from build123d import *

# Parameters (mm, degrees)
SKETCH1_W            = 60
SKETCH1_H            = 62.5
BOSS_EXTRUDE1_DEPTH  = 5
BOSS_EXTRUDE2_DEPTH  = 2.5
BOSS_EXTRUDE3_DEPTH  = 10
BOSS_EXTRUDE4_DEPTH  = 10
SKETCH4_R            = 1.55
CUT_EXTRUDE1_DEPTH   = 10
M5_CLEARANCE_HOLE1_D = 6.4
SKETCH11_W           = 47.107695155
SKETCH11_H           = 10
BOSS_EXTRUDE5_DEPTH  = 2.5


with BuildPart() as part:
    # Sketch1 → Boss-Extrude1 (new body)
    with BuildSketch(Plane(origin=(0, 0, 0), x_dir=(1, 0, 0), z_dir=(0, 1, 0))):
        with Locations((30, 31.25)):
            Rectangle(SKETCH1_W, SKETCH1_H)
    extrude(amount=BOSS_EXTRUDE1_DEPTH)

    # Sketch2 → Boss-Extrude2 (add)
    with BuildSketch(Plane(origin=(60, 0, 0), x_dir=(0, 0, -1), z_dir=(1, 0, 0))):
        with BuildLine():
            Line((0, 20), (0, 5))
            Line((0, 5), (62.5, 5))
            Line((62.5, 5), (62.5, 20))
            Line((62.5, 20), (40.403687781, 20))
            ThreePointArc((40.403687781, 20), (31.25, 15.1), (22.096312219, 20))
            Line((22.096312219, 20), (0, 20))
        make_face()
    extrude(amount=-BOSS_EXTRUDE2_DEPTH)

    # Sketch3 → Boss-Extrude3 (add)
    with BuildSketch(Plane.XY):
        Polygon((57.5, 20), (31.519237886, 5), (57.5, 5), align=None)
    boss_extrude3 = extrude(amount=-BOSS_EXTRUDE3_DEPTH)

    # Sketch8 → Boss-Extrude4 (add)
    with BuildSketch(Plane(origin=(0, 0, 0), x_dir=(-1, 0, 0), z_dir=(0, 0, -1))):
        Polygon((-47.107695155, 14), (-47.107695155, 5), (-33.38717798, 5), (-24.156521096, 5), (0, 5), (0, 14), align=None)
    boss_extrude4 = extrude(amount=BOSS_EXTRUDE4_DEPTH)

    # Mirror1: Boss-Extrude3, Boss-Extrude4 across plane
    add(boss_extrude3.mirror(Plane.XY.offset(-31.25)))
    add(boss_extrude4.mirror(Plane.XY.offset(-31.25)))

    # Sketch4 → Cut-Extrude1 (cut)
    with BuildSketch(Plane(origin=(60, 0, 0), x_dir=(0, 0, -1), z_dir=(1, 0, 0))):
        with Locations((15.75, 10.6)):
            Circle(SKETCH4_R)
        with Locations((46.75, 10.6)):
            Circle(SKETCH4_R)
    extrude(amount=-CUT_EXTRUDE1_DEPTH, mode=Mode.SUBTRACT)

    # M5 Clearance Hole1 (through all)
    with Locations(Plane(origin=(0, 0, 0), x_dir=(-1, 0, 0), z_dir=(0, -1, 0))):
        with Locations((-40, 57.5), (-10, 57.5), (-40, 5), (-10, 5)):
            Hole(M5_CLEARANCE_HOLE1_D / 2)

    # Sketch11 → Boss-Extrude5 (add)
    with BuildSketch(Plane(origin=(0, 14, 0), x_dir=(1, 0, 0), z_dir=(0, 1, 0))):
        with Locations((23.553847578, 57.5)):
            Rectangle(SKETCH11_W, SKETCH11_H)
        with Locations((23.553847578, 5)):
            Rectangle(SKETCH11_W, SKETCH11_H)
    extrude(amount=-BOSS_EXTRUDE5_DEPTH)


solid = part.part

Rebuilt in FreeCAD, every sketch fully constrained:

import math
import FreeCAD as App
import Part
import Sketcher

V = App.Vector
Q = App.Units.Quantity


def add_polygon(sketch, points):
    """Adds a closed chain of lines whose ends are joined by coincident constraints."""
    first, n = sketch.GeometryCount, len(points)
    for a, b in zip(points, points[1:] + points[:1]):
        sketch.addGeometry(Part.LineSegment(App.Vector(*a, 0), App.Vector(*b, 0)), False)
    for i in range(n):
        sketch.addConstraint(Sketcher.Constraint("Coincident", first + i, 2, first + (i + 1) % n, 1))

doc = App.newDocument("Part")
body = doc.addObject("PartDesign::Body", "Body")

# Sketch on XZ plane
sketch1 = body.newObject("Sketcher::SketchObject", "Sketch")
sketch1.AttachmentSupport = (doc.getObject("XZ_Plane"), [""])
sketch1.MapMode = "FlatFace"
add_polygon(sketch1, [(0, -62.5), (0, 0), (60, 0), (60, -62.5)])  # lines 0-3
sketch1.addConstraint([
    Sketcher.Constraint("Vertical", 0),
    Sketcher.Constraint("Horizontal", 1),
    Sketcher.Constraint("Vertical", 2),
    Sketcher.Constraint("Horizontal", 3),
    Sketcher.Constraint("Coincident", 0, 2, -1, 1),
    Sketcher.Constraint("DistanceX", 1, 1, 1, 2, 60.0),
    Sketcher.Constraint("DistanceY", 0, 1, 0, 2, 62.5),
])
pad1 = body.newObject("PartDesign::Pad", "Pad")
pad1.Profile = sketch1
pad1.Length = 5
pad1.Reversed = True

# Sketch on YZ plane
sketch2 = body.newObject("Sketcher::SketchObject", "Sketch001")
sketch2.AttachmentSupport = (doc.getObject("YZ_Plane"), [""])
sketch2.MapMode = "FlatFace"
sketch2.AttachmentOffset = App.Placement(V(0, 0, 60), App.Rotation())
sketch2.addGeometry([
    Part.LineSegment(V(20, 0, 0), V(5, 0, 0)),  # 0
    Part.LineSegment(V(5, 0, 0), V(5, -62.5, 0)),  # 1
    Part.LineSegment(V(5, -62.5, 0), V(20, -62.5, 0)),  # 2
    Part.LineSegment(V(20, -62.5, 0), V(20, -40.403688, 0)),  # 3
    Part.ArcOfCircle(Part.Circle(V(26.1, -31.25, 0), V(0, 0, 1), 11), math.radians(123.679413), math.radians(236.320587)),  # 4
    Part.LineSegment(V(20, -22.096312, 0), V(20, 0, 0)),  # 5
], False)
sketch2.addConstraint([
    Sketcher.Constraint("Coincident", 0, 2, 1, 1),
    Sketcher.Constraint("Coincident", 1, 2, 2, 1),
    Sketcher.Constraint("Coincident", 2, 2, 3, 1),
    Sketcher.Constraint("Coincident", 3, 2, 4, 2),
    Sketcher.Constraint("Coincident", 4, 1, 5, 1),
    Sketcher.Constraint("Coincident", 5, 2, 0, 1),
    Sketcher.Constraint("Horizontal", 0),
    Sketcher.Constraint("Vertical", 1),
    Sketcher.Constraint("Horizontal", 2),
    Sketcher.Constraint("Vertical", 3),
    Sketcher.Constraint("Vertical", 5),
    Sketcher.Constraint("PointOnObject", 0, 2, -1),
    Sketcher.Constraint("Vertical", 3, 2, 4, 1),
    Sketcher.Constraint("Equal", 3, 5),
    Sketcher.Constraint("Radius", 4, 11.0),
    Sketcher.Constraint("DistanceX", 0, 2, 0, 1, 15.0),
    Sketcher.Constraint("DistanceY", 1, 2, 1, 1, 62.5),
    Sketcher.Constraint("DistanceX", -1, 1, 0, 2, 5.0),
    Sketcher.Constraint("DistanceX", -1, 1, 4, 3, 26.1),
])
pad2 = body.newObject("PartDesign::Pad", "Pad001")
pad2.Profile = sketch2
pad2.Length = 2.5
pad2.Reversed = True

# Sketch on XY plane
sketch3 = body.newObject("Sketcher::SketchObject", "Sketch002")
sketch3.AttachmentSupport = (doc.getObject("XY_Plane"), [""])
sketch3.MapMode = "FlatFace"
add_polygon(sketch3, [(57.5, 20), (31.519238, 5), (57.5, 5)])  # lines 0-2
sketch3.addConstraint([
    Sketcher.Constraint("Horizontal", 1),
    Sketcher.Constraint("Vertical", 2),
    Sketcher.Constraint("DistanceY", 2, 1, 2, 2, 15.0),
    Sketcher.Constraint("Angle", 0, Q("-150 deg")),
    Sketcher.Constraint("DistanceY", -1, 1, 0, 2, 5.0),
    Sketcher.Constraint("DistanceX", -1, 1, 1, 2, 57.5),
])
pad3 = body.newObject("PartDesign::Pad", "Pad002")
pad3.Profile = sketch3
pad3.Length = 10
pad3.Reversed = True

# Sketch on XY plane
sketch4 = body.newObject("Sketcher::SketchObject", "Sketch003")
sketch4.AttachmentSupport = (doc.getObject("XY_Plane"), [""])
sketch4.MapMode = "FlatFace"
add_polygon(sketch4, [(47.107695, 14), (47.107695, 5), (0, 5), (0, 14)])  # lines 0-3
sketch4.addConstraint([
    Sketcher.Constraint("Vertical", 0),
    Sketcher.Constraint("Horizontal", 1),
    Sketcher.Constraint("Vertical", 2),
    Sketcher.Constraint("Horizontal", 3),
    Sketcher.Constraint("PointOnObject", 1, 2, -2),
    Sketcher.Constraint("DistanceY", 0, 2, 0, 1, 9.0),
    Sketcher.Constraint("DistanceY", -1, 1, 0, 2, 5.0),
    Sketcher.Constraint("DistanceX", 1, 2, 1, 1, 47.107695),
])
pad4 = body.newObject("PartDesign::Pad", "Pad003")
pad4.Profile = sketch4
pad4.Length = 10
pad4.Reversed = True
doc.recompute()

datumplane = body.newObject("PartDesign::Plane", "DatumPlane")
datumplane.AttachmentSupport = (doc.getObject("XY_Plane"), [""])
datumplane.MapMode = "FlatFace"
datumplane.AttachmentOffset = App.Placement(V(0, 0, -31.25), App.Rotation())
mirrored = body.newObject("PartDesign::Mirrored", "Mirrored")
mirrored.Originals = [pad3, pad4]
mirrored.MirrorPlane = (datumplane, [""])
body.Tip = mirrored

# Sketch on YZ plane
sketch5 = body.newObject("Sketcher::SketchObject", "Sketch004")
sketch5.AttachmentSupport = (doc.getObject("YZ_Plane"), [""])
sketch5.MapMode = "FlatFace"
sketch5.AttachmentOffset = App.Placement(V(0, 0, 60), App.Rotation())
sketch5.addGeometry([
    Part.Circle(V(10.6, -15.75, 0), V(0, 0, 1), 1.55),
    Part.Circle(V(10.6, -46.75, 0), V(0, 0, 1), 1.55),
], False)
sketch5.addConstraint([
    Sketcher.Constraint("Equal", 0, 1),
    Sketcher.Constraint("Vertical", 0, 3, 1, 3),
    Sketcher.Constraint("Diameter", 0, 3.1),
    Sketcher.Constraint("DistanceY", 1, 3, 0, 3, 31.0),
    Sketcher.Constraint("DistanceX", -1, 1, 0, 3, 10.6),
    Sketcher.Constraint("DistanceY", 0, 3, -1, 1, 15.75),
])
pocket1 = body.newObject("PartDesign::Pocket", "Pocket")
pocket1.Profile = sketch5
pocket1.Length = 10

# Sketch on XZ plane
sketch6 = body.newObject("Sketcher::SketchObject", "Sketch005")
sketch6.AttachmentSupport = (doc.getObject("XZ_Plane"), [""])
sketch6.MapMode = "FlatFace"
sketch6.addGeometry([
    Part.Circle(V(40, -57.5, 0), V(0, 0, 1), 3.2),
    Part.Circle(V(10, -57.5, 0), V(0, 0, 1), 3.2),
    Part.Circle(V(40, -5, 0), V(0, 0, 1), 3.2),
    Part.Circle(V(10, -5, 0), V(0, 0, 1), 3.2),
], False)
sketch6.addConstraint([
    Sketcher.Constraint("Equal", 0, 1),
    Sketcher.Constraint("Equal", 1, 2),
    Sketcher.Constraint("Equal", 2, 3),
    Sketcher.Constraint("Horizontal", 0, 3, 1, 3),
    Sketcher.Constraint("Horizontal", 2, 3, 3, 3),
    Sketcher.Constraint("Vertical", 0, 3, 2, 3),
    Sketcher.Constraint("Vertical", 1, 3, 3, 3),
    Sketcher.Constraint("Diameter", 0, 6.4),
    Sketcher.Constraint("DistanceX", -1, 1, 0, 3, 40.0),
    Sketcher.Constraint("DistanceX", -1, 1, 1, 3, 10.0),
    Sketcher.Constraint("DistanceY", 2, 3, -1, 1, 5.0),
    Sketcher.Constraint("DistanceY", 0, 3, -1, 1, 57.5),
])
doc.recompute()
hole = body.newObject("PartDesign::Hole", "Hole")
hole.Profile = sketch6
hole.ThreadType = "None"
hole.Diameter = 6.4
hole.DepthType = "ThroughAll"

# Sketch on XZ plane
sketch7 = body.newObject("Sketcher::SketchObject", "Sketch006")
sketch7.AttachmentSupport = (doc.getObject("XZ_Plane"), [""])
sketch7.MapMode = "FlatFace"
sketch7.AttachmentOffset = App.Placement(V(0, 0, -14), App.Rotation())
add_polygon(sketch7, [(0, -62.5), (0, -52.5), (47.107695, -52.5), (47.107695, -62.5)])  # lines 0-3
add_polygon(sketch7, [(0, -10), (0, 0), (47.107695, 0), (47.107695, -10)])  # lines 4-7
sketch7.addConstraint([
    Sketcher.Constraint("Vertical", 0),
    Sketcher.Constraint("Horizontal", 1),
    Sketcher.Constraint("Vertical", 2),
    Sketcher.Constraint("Horizontal", 3),
    Sketcher.Constraint("Vertical", 4),
    Sketcher.Constraint("Horizontal", 5),
    Sketcher.Constraint("Vertical", 6),
    Sketcher.Constraint("Horizontal", 7),
    Sketcher.Constraint("Coincident", 4, 2, -1, 1),
    Sketcher.Constraint("PointOnObject", 0, 2, -2),
    Sketcher.Constraint("Vertical", 2, 2, 5, 2),
    Sketcher.Constraint("Equal", 2, 4),
    Sketcher.Constraint("DistanceY", 0, 1, 0, 2, 10.0),
    Sketcher.Constraint("DistanceY", 0, 2, -1, 1, 52.5),
    Sketcher.Constraint("DistanceX", 1, 1, 1, 2, 47.107695),
])
pad5 = body.newObject("PartDesign::Pad", "Pad004")
pad5.Profile = sketch7
pad5.Length = 2.5

doc.recompute()
